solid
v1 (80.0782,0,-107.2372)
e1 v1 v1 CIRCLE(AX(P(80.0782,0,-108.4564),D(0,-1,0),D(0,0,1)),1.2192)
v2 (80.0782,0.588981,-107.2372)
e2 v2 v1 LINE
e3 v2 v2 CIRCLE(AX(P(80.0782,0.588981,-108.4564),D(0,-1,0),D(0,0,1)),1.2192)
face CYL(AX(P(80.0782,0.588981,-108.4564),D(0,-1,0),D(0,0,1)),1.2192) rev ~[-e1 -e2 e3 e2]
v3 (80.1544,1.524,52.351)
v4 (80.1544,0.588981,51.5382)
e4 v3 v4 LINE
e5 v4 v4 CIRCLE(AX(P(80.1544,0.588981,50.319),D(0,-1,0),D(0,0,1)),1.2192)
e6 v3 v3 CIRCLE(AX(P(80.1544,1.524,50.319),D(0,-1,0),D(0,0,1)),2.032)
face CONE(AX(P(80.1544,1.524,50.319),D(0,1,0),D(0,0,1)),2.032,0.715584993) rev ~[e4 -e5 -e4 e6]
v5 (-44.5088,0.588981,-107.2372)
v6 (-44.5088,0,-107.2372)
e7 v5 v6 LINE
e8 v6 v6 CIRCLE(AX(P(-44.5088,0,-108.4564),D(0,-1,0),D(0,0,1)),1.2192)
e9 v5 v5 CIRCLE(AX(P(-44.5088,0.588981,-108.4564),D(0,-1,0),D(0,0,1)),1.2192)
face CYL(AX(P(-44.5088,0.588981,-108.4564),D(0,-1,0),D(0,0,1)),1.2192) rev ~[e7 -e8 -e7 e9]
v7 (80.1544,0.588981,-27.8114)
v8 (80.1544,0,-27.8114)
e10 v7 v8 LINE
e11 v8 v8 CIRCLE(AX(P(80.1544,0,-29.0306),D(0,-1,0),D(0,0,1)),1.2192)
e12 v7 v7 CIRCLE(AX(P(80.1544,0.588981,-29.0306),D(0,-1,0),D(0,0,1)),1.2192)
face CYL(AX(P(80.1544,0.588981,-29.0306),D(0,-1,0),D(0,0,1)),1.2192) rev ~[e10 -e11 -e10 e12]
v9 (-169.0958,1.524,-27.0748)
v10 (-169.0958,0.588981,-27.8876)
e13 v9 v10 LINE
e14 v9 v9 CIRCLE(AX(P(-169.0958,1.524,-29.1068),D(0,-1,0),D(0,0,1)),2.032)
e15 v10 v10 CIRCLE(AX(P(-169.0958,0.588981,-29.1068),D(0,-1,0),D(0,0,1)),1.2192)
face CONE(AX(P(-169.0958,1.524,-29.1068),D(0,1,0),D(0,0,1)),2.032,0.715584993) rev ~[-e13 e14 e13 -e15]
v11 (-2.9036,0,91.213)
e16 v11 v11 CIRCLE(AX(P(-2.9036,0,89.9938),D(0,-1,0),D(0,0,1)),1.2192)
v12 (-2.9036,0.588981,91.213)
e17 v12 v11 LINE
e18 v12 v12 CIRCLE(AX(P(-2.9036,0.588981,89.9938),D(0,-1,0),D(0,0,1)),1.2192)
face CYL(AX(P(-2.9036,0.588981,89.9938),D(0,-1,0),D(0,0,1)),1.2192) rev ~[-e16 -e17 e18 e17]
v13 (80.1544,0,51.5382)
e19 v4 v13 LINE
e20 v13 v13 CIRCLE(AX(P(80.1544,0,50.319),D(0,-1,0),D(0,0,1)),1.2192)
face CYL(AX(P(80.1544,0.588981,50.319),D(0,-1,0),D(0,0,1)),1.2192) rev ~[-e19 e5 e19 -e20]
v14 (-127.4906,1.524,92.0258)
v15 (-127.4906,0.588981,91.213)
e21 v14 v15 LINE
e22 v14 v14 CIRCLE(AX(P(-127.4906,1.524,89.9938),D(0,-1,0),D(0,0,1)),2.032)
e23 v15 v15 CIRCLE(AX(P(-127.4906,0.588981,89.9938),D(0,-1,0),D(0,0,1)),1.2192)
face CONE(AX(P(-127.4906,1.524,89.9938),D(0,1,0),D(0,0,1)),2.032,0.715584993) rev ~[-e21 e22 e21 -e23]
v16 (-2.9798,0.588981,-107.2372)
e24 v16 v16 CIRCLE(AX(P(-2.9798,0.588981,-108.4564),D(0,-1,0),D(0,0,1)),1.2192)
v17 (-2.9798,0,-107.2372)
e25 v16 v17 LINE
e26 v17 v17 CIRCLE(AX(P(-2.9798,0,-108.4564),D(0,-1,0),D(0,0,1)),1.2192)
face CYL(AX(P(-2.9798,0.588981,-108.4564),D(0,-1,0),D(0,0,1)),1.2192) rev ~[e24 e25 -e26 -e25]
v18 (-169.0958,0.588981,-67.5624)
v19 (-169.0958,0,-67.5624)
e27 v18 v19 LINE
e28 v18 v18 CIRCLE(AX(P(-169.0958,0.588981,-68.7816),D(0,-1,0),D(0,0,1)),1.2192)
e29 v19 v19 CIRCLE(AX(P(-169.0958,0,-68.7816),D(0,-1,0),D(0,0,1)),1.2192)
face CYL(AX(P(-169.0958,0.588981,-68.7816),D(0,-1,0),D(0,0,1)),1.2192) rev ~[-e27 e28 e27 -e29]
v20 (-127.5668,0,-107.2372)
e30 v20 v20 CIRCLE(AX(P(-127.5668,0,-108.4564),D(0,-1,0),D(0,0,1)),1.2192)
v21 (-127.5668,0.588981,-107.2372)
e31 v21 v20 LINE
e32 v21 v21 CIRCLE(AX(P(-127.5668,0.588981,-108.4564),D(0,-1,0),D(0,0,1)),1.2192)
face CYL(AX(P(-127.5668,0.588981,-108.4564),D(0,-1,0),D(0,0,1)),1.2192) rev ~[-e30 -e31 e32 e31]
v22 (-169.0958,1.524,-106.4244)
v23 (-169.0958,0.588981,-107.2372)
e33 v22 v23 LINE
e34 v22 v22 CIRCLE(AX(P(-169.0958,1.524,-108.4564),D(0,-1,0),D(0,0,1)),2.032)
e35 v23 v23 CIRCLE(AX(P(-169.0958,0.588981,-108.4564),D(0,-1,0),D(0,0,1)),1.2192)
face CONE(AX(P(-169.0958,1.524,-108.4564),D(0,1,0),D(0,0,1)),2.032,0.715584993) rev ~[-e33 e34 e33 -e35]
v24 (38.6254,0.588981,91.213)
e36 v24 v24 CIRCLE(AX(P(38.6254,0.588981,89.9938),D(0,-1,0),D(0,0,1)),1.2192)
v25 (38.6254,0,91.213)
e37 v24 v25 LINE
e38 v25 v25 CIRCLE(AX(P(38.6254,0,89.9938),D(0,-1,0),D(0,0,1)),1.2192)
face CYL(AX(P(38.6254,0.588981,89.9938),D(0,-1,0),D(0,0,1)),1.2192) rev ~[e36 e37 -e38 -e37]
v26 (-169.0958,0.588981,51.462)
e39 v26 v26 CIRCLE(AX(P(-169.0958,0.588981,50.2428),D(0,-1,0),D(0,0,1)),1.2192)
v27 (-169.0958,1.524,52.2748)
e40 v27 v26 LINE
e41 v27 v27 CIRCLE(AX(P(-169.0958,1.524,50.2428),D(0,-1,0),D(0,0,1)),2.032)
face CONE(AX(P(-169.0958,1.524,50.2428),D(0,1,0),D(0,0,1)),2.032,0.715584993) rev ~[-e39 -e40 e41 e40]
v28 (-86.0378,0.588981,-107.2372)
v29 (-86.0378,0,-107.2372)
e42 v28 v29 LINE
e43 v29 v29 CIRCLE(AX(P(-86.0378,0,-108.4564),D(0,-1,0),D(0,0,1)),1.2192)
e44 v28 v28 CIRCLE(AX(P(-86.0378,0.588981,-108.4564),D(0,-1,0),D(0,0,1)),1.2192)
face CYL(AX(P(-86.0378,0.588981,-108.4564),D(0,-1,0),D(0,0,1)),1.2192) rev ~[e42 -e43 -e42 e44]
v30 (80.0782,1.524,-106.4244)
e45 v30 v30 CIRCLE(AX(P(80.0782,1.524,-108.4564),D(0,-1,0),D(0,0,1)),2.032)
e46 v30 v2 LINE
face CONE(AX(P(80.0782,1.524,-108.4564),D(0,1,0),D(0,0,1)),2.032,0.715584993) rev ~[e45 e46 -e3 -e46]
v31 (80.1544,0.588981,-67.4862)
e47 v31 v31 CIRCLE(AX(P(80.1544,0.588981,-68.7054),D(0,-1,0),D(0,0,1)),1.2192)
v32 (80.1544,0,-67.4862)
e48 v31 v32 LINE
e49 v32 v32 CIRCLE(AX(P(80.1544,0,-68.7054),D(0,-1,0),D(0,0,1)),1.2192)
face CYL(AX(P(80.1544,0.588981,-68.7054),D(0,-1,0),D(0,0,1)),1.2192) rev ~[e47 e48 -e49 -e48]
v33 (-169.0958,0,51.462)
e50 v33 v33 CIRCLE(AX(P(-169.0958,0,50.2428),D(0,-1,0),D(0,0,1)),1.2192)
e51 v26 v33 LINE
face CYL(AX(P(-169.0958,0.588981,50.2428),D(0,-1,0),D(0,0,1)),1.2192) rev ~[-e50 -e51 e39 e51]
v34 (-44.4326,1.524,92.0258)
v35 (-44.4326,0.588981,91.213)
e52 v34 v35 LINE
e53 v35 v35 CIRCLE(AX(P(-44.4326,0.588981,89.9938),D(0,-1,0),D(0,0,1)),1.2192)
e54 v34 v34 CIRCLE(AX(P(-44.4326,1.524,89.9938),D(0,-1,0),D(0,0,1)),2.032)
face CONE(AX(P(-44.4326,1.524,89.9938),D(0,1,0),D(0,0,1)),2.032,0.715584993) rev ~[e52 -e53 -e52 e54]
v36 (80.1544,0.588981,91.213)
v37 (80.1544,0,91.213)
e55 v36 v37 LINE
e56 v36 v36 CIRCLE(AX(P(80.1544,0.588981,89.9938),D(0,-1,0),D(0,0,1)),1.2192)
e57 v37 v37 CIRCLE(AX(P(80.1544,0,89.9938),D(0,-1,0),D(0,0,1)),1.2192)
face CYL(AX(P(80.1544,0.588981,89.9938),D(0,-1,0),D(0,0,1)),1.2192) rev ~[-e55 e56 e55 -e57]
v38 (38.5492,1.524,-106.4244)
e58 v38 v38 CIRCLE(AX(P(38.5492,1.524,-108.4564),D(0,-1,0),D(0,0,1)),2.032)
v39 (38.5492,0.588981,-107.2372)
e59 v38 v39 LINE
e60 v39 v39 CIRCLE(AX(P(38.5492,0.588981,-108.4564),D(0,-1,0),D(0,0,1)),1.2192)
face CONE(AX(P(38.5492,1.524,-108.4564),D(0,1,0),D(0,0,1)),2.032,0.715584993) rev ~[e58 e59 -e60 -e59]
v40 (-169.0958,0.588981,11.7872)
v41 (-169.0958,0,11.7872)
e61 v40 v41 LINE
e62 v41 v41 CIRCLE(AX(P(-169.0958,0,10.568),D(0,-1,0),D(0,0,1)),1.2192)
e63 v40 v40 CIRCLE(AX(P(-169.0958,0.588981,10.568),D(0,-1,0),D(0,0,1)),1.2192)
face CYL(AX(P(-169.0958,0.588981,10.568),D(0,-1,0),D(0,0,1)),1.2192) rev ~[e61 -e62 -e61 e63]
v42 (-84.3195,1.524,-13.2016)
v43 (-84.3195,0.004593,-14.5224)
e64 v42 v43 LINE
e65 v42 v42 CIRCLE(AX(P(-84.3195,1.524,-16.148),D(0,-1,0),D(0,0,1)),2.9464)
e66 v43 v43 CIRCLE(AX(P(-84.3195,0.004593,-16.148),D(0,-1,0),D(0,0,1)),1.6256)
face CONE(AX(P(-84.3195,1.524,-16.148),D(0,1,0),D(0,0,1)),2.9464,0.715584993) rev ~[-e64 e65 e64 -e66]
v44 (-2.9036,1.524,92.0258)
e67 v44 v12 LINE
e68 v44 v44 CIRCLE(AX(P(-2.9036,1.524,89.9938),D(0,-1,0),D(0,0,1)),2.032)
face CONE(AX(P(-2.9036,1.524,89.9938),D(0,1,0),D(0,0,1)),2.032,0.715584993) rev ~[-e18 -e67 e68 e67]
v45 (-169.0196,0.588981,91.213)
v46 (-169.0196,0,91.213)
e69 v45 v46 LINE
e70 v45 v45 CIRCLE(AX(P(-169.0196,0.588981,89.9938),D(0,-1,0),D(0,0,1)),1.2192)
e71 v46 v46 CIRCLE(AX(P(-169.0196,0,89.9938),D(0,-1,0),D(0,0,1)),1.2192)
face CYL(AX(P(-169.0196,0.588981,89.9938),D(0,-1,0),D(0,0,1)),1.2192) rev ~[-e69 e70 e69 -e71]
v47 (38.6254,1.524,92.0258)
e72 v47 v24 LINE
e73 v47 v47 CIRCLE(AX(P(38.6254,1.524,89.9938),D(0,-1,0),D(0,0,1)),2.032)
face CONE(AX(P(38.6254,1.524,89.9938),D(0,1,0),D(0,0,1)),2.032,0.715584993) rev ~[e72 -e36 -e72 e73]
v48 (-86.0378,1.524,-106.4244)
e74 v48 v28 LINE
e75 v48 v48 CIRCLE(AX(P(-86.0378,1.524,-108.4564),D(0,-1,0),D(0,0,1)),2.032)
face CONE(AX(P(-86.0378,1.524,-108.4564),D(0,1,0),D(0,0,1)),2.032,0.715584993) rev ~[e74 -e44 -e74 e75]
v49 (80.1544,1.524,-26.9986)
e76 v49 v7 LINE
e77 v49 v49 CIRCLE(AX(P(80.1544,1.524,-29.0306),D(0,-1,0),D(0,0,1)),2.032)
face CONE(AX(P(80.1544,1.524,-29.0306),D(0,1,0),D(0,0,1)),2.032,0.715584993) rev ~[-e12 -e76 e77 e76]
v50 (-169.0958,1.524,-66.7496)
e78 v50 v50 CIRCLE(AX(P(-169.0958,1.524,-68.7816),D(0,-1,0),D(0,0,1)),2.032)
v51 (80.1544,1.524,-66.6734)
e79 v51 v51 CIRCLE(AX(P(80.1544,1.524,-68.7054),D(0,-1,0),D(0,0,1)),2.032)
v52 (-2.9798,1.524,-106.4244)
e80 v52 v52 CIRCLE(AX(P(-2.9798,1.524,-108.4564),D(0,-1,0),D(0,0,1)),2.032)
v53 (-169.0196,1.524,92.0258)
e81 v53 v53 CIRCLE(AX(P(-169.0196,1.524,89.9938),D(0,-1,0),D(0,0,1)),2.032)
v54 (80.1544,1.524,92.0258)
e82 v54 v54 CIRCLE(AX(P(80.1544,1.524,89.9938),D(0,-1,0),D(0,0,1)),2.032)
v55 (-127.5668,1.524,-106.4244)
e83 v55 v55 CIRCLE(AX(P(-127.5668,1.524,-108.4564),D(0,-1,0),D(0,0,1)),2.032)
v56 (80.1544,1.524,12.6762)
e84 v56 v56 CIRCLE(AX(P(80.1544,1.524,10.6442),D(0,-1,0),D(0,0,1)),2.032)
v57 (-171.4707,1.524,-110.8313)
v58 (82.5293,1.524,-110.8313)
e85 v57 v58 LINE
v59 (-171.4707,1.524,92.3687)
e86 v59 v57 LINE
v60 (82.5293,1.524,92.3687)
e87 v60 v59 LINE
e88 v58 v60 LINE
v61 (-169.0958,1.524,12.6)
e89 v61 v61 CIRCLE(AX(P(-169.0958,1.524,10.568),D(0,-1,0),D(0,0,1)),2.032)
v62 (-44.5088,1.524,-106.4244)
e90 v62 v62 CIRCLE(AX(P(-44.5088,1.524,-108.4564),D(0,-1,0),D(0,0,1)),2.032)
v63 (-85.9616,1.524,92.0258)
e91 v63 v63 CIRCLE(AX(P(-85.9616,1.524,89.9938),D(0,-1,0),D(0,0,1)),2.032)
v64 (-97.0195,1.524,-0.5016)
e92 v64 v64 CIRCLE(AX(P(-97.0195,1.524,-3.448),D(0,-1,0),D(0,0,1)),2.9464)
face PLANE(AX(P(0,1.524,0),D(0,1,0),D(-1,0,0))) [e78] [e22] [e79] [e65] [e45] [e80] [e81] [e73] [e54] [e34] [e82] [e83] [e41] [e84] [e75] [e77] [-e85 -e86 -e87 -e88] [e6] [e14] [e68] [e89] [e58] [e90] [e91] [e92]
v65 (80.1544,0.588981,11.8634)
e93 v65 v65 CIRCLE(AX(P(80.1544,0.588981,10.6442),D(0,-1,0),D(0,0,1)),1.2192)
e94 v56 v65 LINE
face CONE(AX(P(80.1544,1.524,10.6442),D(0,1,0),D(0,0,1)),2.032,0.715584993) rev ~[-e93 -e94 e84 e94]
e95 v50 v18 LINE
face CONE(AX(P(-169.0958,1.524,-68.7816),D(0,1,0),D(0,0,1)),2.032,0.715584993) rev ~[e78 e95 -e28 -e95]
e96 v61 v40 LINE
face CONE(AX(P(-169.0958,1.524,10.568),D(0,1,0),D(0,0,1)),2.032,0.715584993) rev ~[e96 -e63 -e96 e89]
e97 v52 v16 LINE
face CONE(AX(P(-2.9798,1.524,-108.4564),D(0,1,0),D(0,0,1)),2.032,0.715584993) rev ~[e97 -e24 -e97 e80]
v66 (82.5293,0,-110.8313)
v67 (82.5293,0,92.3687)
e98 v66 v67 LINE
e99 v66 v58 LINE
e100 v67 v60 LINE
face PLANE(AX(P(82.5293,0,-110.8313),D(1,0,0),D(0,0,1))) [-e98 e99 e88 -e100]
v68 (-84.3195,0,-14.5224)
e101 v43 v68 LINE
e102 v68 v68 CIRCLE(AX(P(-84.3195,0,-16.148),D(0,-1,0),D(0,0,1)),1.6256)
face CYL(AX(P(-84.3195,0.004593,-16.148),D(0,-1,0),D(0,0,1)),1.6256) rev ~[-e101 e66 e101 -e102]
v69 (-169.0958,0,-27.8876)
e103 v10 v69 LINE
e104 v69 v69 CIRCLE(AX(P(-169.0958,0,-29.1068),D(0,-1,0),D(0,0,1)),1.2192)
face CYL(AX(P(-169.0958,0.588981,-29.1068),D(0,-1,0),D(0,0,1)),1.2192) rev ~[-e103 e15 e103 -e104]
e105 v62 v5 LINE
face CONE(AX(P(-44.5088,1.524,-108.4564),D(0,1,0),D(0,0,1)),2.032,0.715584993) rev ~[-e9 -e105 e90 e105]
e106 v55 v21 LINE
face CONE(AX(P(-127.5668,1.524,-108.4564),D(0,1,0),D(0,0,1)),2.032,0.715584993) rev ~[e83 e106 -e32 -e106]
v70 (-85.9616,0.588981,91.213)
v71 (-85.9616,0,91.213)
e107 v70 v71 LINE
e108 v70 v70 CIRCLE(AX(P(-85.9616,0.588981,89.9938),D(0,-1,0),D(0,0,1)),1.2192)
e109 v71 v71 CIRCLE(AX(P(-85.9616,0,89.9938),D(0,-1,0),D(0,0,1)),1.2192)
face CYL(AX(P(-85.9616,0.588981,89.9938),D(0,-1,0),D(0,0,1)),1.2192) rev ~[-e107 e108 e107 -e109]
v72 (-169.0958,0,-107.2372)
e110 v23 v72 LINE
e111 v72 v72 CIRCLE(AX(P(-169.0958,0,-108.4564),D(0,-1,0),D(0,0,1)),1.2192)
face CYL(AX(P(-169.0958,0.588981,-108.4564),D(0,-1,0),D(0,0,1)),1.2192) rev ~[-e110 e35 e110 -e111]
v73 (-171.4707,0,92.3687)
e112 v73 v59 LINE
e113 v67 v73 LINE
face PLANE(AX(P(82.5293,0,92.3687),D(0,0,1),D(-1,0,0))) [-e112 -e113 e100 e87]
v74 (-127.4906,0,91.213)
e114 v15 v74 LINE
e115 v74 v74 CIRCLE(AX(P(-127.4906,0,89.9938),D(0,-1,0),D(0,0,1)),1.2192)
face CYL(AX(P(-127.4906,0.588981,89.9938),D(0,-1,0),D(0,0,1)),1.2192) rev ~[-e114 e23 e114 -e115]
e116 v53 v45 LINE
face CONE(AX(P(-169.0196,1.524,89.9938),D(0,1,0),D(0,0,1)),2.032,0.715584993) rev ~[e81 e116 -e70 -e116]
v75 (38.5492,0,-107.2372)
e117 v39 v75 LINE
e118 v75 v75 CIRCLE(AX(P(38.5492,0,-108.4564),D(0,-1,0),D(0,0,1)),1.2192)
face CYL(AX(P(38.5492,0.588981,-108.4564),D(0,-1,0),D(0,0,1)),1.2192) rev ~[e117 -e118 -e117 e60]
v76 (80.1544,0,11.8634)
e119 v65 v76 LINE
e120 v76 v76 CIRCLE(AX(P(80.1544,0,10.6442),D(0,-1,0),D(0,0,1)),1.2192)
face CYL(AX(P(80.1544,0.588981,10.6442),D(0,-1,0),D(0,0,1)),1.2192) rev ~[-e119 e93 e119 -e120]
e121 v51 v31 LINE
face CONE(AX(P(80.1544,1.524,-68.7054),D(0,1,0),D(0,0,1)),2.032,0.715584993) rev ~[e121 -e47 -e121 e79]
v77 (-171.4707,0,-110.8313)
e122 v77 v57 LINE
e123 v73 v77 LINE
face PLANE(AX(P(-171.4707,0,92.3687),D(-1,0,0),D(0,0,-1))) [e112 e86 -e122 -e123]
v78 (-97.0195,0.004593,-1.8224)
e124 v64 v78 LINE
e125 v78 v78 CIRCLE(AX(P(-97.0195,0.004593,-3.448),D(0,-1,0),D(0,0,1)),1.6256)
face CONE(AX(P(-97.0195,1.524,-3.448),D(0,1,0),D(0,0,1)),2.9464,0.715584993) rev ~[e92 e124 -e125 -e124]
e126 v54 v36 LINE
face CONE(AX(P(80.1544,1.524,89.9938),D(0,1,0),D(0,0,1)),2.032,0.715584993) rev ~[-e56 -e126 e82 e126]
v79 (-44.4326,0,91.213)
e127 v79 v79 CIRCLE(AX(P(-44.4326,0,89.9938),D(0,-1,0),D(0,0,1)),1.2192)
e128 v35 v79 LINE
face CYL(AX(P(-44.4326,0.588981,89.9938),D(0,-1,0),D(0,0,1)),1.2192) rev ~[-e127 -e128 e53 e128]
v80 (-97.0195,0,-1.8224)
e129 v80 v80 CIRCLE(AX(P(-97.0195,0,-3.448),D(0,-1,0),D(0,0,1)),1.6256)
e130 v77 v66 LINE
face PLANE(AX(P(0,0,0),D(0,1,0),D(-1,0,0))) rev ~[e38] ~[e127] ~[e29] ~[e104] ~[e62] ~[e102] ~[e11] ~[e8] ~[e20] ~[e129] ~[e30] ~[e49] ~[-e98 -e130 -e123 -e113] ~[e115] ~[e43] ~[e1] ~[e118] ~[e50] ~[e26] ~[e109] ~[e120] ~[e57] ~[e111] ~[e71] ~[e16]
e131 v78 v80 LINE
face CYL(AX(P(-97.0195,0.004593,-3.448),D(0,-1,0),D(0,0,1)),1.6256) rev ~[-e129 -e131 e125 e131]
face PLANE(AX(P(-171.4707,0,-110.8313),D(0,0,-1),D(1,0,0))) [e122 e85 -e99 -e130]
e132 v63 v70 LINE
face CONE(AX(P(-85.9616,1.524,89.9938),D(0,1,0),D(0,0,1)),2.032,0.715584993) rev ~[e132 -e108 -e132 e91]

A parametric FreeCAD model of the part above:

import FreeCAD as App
import Part
import Sketcher
from FreeCAD import Vector
Q = App.Units.Quantity


def add_polygon(sketch, points):
    """Adds a closed chain of lines whose ends are joined by coincident constraints."""
    first, n = sketch.GeometryCount, len(points)
    for a, b in zip(points, points[1:] + points[:1]):
        sketch.addGeometry(Part.LineSegment(App.Vector(*a, 0), App.Vector(*b, 0)), False)
    for i in range(n):
        sketch.addConstraint(Sketcher.Constraint("Coincident", first + i, 2, first + (i + 1) % n, 1))

doc = App.newDocument("Part")
params = doc.addObject("Spreadsheet::Sheet", "Params")
for row, (alias, value) in enumerate([
    ("sketch1_width", "10 in"),
    ("sketch1_height", "8 in"),
    ("pad1_length", "0.06 in"),
    ("sketch2_diameter", "0.096 in"),
    ("hole_diameter", "0.096 in"),
    ("hole_depth", "1 in"),
    ("hole_csink_diameter", "0.16 in"),
    ("linearpattern_pitch", "1.635 in"),
    ("linearpattern2_pitch", "1.562 in"),
    ("sketch3_diameter", "0.096 in"),
    ("hole2_diameter", "0.096 in"),
    ("hole2_depth", "1 in"),
    ("hole2_csink_diameter", "0.16 in"),
    ("linearpattern3_pitch", "1.562 in"),
    ("linearpattern4_pitch", "1.635 in"),
    ("sketch4_diameter", "0.128 in"),
    ("hole3_diameter", "0.128 in"),
    ("hole3_depth", "0.06 in"),
    ("hole3_csink_diameter", "0.232 in"),
    ("sketch5_diameter", "0.128 in"),
    ("hole4_diameter", "0.128 in"),
    ("hole4_depth", "1 in"),
    ("hole4_csink_diameter", "0.232 in"),
], start=1):
    params.set(f"A{row}", alias)
    params.set(f"B{row}", "=" + value)
    params.setAlias(f"B{row}", alias)

body = doc.addObject("PartDesign::Body", "Body")

# Sketch on XZ plane
sketch1 = body.newObject("Sketcher::SketchObject", "Sketch")
sketch1.AttachmentSupport = (doc.getObject("XZ_Plane"), [""])
sketch1.MapMode = "FlatFace"
add_polygon(sketch1, [(-171, 92), (83, 92), (83, -111), (-171, -111)])  # lines 0-3
sketch1.addConstraint([
    Sketcher.Constraint("Horizontal", 0),
    Sketcher.Constraint("Vertical", 1),
    Sketcher.Constraint("Horizontal", 2),
    Sketcher.Constraint("Vertical", 3),
    Sketcher.Constraint("DistanceX", 0, 1, 0, 2, Q("10 in")),
    Sketcher.Constraint("DistanceY", 1, 2, 1, 1, Q("8 in")),
    Sketcher.Constraint("DistanceX", -1, 1, 0, 2, 82.5293),
    Sketcher.Constraint("DistanceY", -1, 1, 0, 2, 92.3687),
])
sketch1.setExpression("Constraints[8]", "Params.sketch1_width")
sketch1.setExpression("Constraints[9]", "Params.sketch1_height")
pad1 = body.newObject("PartDesign::Pad", "Pad")
pad1.Profile = sketch1
pad1.setExpression("Length", "Params.pad1_length")
pad1.Reversed = True

# Sketch on XZ plane
sketch2 = body.newObject("Sketcher::SketchObject", "Sketch001")
sketch2.AttachmentSupport = (doc.getObject("XZ_Plane"), [""])
sketch2.MapMode = "FlatFace"
sketch2.AttachmentOffset = App.Placement(Vector(0, 0, -0.06 * 25.4), App.Rotation())
sketch2.addGeometry(Part.Circle(Vector(-169.1, -108.5, 0), Vector(0, 0, 1), 1.2), False)
sketch2.addConstraint([
    Sketcher.Constraint("Diameter", 0, Q("0.096 in")),
    Sketcher.Constraint("DistanceX", 0, 3, -1, 1, 169.0958),
    Sketcher.Constraint("DistanceY", 0, 3, -1, 1, 108.4564),
])
sketch2.setExpression("Constraints[0]", "Params.sketch2_diameter")
doc.recompute()
hole = body.newObject("PartDesign::Hole", "Hole")
hole.Profile = sketch2
hole.ThreadType = "None"
hole.setExpression("Diameter", "Params.hole_diameter")
hole.DepthType = "Dimension"
hole.setExpression("Depth", "Params.hole_depth")
hole.DrillPoint = "Angled"
hole.DrillPointAngle = 118
hole.HoleCutType = "Countersink"
hole.setExpression("HoleCutDiameter", "Params.hole_csink_diameter")
hole.HoleCutCountersinkAngle = 82
hole.Reversed = True
doc.recompute()

linearpattern = body.newObject("PartDesign::LinearPattern", "LinearPattern")
linearpattern.Originals = [hole]
linearpattern.Direction = (doc.getObject("X_Axis"), [""])
linearpattern.Mode = "offset"
linearpattern.setExpression("Offset", "Params.linearpattern_pitch")
linearpattern.Occurrences = 7
body.Tip = linearpattern
doc.recompute()

linearpattern2 = body.newObject("PartDesign::LinearPattern", "LinearPattern001")
linearpattern2.Originals = [hole]
linearpattern2.Direction = (doc.getObject("Z_Axis"), [""])
linearpattern2.Mode = "offset"
linearpattern2.setExpression("Offset", "Params.linearpattern2_pitch")
linearpattern2.Occurrences = 5
body.Tip = linearpattern2

# Sketch on XZ plane
sketch3 = body.newObject("Sketcher::SketchObject", "Sketch002")
sketch3.AttachmentSupport = (doc.getObject("XZ_Plane"), [""])
sketch3.MapMode = "FlatFace"
sketch3.AttachmentOffset = App.Placement(Vector(0, 0, -0.06 * 25.4), App.Rotation())
sketch3.addGeometry(Part.Circle(Vector(80.2, 90, 0), Vector(0, 0, 1), 1.2), False)
sketch3.addConstraint([
    Sketcher.Constraint("Diameter", 0, Q("0.096 in")),
    Sketcher.Constraint("DistanceX", -1, 1, 0, 3, 80.1544),
    Sketcher.Constraint("DistanceY", -1, 1, 0, 3, 89.9938),
])
sketch3.setExpression("Constraints[0]", "Params.sketch3_diameter")
doc.recompute()
hole2 = body.newObject("PartDesign::Hole", "Hole001")
hole2.Profile = sketch3
hole2.ThreadType = "None"
hole2.setExpression("Diameter", "Params.hole2_diameter")
hole2.DepthType = "Dimension"
hole2.setExpression("Depth", "Params.hole2_depth")
hole2.DrillPoint = "Angled"
hole2.DrillPointAngle = 118
hole2.HoleCutType = "Countersink"
hole2.setExpression("HoleCutDiameter", "Params.hole2_csink_diameter")
hole2.HoleCutCountersinkAngle = 82
hole2.Reversed = True
doc.recompute()

linearpattern3 = body.newObject("PartDesign::LinearPattern", "LinearPattern002")
linearpattern3.Originals = [hole2]
linearpattern3.Direction = (doc.getObject("Z_Axis"), [""])
linearpattern3.Mode = "offset"
linearpattern3.setExpression("Offset", "Params.linearpattern3_pitch")
linearpattern3.Occurrences = 5
linearpattern3.Reversed = True
body.Tip = linearpattern3
doc.recompute()

linearpattern4 = body.newObject("PartDesign::LinearPattern", "LinearPattern003")
linearpattern4.Originals = [hole2]
linearpattern4.Direction = (doc.getObject("X_Axis"), [""])
linearpattern4.Mode = "offset"
linearpattern4.setExpression("Offset", "Params.linearpattern4_pitch")
linearpattern4.Occurrences = 7
linearpattern4.Reversed = True
body.Tip = linearpattern4

# Sketch on XZ plane
sketch4 = body.newObject("Sketcher::SketchObject", "Sketch003")
sketch4.AttachmentSupport = (doc.getObject("XZ_Plane"), [""])
sketch4.MapMode = "FlatFace"
sketch4.AttachmentOffset = App.Placement(Vector(0, 0, -0.06 * 25.4), App.Rotation())
sketch4.addGeometry(Part.Circle(Vector(-97, -3.4, 0), Vector(0, 0, 1), 1.6), False)
sketch4.addConstraint([
    Sketcher.Constraint("Diameter", 0, Q("0.128 in")),
    Sketcher.Constraint("DistanceX", 0, 3, -1, 1, 97.0195),
    Sketcher.Constraint("DistanceY", 0, 3, -1, 1, 3.448),
])
sketch4.setExpression("Constraints[0]", "Params.sketch4_diameter")
doc.recompute()
hole3 = body.newObject("PartDesign::Hole", "Hole002")
hole3.Profile = sketch4
hole3.ThreadType = "None"
hole3.setExpression("Diameter", "Params.hole3_diameter")
hole3.DepthType = "Dimension"
hole3.setExpression("Depth", "Params.hole3_depth")
hole3.DrillPoint = "Angled"
hole3.DrillPointAngle = 118
hole3.HoleCutType = "Countersink"
hole3.setExpression("HoleCutDiameter", "Params.hole3_csink_diameter")
hole3.HoleCutCountersinkAngle = 82
hole3.Reversed = True

# Sketch on XZ plane
sketch5 = body.newObject("Sketcher::SketchObject", "Sketch004")
sketch5.AttachmentSupport = (doc.getObject("XZ_Plane"), [""])
sketch5.MapMode = "FlatFace"
sketch5.AttachmentOffset = App.Placement(Vector(0, 0, -0.06 * 25.4), App.Rotation())
sketch5.addGeometry(Part.Circle(Vector(-84.3, -16.1, 0), Vector(0, 0, 1), 1.6), False)
sketch5.addConstraint([
    Sketcher.Constraint("Diameter", 0, Q("0.128 in")),
    Sketcher.Constraint("DistanceX", 0, 3, -1, 1, 84.3195),
    Sketcher.Constraint("DistanceY", 0, 3, -1, 1, 16.148),
])
sketch5.setExpression("Constraints[0]", "Params.sketch5_diameter")
doc.recompute()
hole4 = body.newObject("PartDesign::Hole", "Hole003")
hole4.Profile = sketch5
hole4.ThreadType = "None"
hole4.setExpression("Diameter", "Params.hole4_diameter")
hole4.DepthType = "Dimension"
hole4.setExpression("Depth", "Params.hole4_depth")
hole4.DrillPoint = "Angled"
hole4.DrillPointAngle = 118
hole4.HoleCutType = "Countersink"
hole4.setExpression("HoleCutDiameter", "Params.hole4_csink_diameter")
hole4.HoleCutCountersinkAngle = 82
hole4.Reversed = True

doc.recompute()
